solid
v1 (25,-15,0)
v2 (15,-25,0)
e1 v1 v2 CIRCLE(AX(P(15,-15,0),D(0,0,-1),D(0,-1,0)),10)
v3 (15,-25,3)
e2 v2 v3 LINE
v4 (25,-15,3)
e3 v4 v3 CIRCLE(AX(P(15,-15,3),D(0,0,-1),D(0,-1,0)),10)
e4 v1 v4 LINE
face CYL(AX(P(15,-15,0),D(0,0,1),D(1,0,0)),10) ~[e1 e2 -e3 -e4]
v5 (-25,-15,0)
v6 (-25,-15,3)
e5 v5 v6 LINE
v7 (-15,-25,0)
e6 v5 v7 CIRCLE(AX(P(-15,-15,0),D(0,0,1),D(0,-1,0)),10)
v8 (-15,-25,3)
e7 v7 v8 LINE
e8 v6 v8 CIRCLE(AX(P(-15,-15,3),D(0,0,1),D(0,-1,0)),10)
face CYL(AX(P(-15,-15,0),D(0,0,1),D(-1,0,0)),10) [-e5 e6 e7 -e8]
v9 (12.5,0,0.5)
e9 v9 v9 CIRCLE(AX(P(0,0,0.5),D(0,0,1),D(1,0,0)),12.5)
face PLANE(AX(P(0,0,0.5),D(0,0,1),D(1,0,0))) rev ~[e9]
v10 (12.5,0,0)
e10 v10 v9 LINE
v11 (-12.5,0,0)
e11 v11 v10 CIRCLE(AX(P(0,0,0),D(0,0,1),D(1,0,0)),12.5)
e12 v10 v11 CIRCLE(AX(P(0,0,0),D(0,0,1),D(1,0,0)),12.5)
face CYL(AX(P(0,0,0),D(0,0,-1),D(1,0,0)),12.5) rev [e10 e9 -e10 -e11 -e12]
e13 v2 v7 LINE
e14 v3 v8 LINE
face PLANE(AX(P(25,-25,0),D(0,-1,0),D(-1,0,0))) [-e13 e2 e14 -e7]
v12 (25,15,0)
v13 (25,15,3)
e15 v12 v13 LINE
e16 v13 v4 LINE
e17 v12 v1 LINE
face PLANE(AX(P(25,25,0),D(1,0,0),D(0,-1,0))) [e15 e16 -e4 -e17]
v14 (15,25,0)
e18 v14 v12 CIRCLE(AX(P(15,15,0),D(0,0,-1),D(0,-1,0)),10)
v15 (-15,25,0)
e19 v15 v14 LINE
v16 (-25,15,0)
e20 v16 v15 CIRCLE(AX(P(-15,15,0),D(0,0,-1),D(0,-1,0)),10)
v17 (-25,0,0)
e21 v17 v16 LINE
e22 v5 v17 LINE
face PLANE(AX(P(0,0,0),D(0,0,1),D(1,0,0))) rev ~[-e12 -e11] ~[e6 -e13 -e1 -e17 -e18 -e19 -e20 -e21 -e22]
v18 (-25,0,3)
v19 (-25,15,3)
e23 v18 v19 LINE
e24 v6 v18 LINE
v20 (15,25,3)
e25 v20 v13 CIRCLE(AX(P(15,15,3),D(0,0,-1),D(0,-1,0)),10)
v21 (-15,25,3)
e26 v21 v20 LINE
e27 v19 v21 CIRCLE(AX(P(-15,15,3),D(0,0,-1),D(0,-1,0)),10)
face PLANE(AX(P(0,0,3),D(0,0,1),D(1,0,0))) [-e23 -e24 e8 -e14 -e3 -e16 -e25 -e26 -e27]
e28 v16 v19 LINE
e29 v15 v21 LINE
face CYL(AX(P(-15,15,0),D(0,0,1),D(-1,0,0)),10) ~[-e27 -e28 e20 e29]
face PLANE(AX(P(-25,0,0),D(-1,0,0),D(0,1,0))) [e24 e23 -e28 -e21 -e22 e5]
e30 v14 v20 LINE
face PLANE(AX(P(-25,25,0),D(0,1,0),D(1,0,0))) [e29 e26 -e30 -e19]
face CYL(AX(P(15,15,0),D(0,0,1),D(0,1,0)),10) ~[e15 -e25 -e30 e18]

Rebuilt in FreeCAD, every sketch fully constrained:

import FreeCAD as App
import Part
import Sketcher


def edges_at(feature, points):
    """Names of the edges that pass closest to the given points."""
    edges = feature.Shape.Edges
    near = lambda p: min(range(len(edges)), key=lambda i: edges[i].distToShape(Part.Vertex(*p))[0])
    return sorted({f"Edge{near(p) + 1}" for p in points})


def add_polygon(sketch, points):
    """Adds a closed chain of lines whose ends are joined by coincident constraints."""
    first, n = sketch.GeometryCount, len(points)
    for a, b in zip(points, points[1:] + points[:1]):
        sketch.addGeometry(Part.LineSegment(App.Vector(*a, 0), App.Vector(*b, 0)), False)
    for i in range(n):
        sketch.addConstraint(Sketcher.Constraint("Coincident", first + i, 2, first + (i + 1) % n, 1))

doc = App.newDocument("Part")
body = doc.addObject("PartDesign::Body", "Body")

sketch1 = body.newObject("Sketcher::SketchObject", "Sketch")
sketch1.AttachmentSupport = (doc.getObject("XY_Plane"), [""])
sketch1.MapMode = "FlatFace"
add_polygon(sketch1, [(-25, 25), (-25, 0), (-25, -25), (25, -25), (25, 25)])
sketch1.addConstraint(Sketcher.Constraint("Vertical", 0))
sketch1.addConstraint(Sketcher.Constraint("Vertical", 1))
sketch1.addConstraint(Sketcher.Constraint("Horizontal", 2))
sketch1.addConstraint(Sketcher.Constraint("Vertical", 3))
sketch1.addConstraint(Sketcher.Constraint("Horizontal", 4))
sketch1.addConstraint(Sketcher.Constraint("Symmetric", 1, 2, 3, 2, -1, 1))
sketch1.addConstraint(Sketcher.Constraint("PointOnObject", 0, 2, -1))
sketch1.addConstraint(Sketcher.Constraint("Equal", 4, 3))
sketch1.addConstraint(Sketcher.Constraint("DistanceY", 0, 2, 0, 1, 25.0))
pad1 = body.newObject("PartDesign::Pad", "Pad")
pad1.Profile = sketch1
pad1.Length = 3

sketch2 = body.newObject("Sketcher::SketchObject", "Sketch001")
sketch2.AttachmentSupport = (doc.getObject("XY_Plane"), [""])
sketch2.MapMode = "FlatFace"
sketch2.addGeometry(Part.Circle(App.Vector(0, 0, 0), App.Vector(0, 0, 1), 12), False)
sketch2.addConstraint(Sketcher.Constraint("Coincident", 0, 3, -1, 1))
sketch2.addConstraint(Sketcher.Constraint("Diameter", 0, 25.0))
pocket1 = body.newObject("PartDesign::Pocket", "Pocket")
pocket1.Profile = sketch2
pocket1.Length = 0.5
pocket1.Reversed = True
doc.recompute()

fillet = body.newObject("PartDesign::Fillet", "Fillet")
fillet.Base = (pocket1, edges_at(pocket1, [
    (25, -25, 1.5),
    (25, 25, 1.5),
    (-25, 25, 1.5),
    (-25, -25, 1.5),
]))
fillet.Radius = 10

doc.recompute()
